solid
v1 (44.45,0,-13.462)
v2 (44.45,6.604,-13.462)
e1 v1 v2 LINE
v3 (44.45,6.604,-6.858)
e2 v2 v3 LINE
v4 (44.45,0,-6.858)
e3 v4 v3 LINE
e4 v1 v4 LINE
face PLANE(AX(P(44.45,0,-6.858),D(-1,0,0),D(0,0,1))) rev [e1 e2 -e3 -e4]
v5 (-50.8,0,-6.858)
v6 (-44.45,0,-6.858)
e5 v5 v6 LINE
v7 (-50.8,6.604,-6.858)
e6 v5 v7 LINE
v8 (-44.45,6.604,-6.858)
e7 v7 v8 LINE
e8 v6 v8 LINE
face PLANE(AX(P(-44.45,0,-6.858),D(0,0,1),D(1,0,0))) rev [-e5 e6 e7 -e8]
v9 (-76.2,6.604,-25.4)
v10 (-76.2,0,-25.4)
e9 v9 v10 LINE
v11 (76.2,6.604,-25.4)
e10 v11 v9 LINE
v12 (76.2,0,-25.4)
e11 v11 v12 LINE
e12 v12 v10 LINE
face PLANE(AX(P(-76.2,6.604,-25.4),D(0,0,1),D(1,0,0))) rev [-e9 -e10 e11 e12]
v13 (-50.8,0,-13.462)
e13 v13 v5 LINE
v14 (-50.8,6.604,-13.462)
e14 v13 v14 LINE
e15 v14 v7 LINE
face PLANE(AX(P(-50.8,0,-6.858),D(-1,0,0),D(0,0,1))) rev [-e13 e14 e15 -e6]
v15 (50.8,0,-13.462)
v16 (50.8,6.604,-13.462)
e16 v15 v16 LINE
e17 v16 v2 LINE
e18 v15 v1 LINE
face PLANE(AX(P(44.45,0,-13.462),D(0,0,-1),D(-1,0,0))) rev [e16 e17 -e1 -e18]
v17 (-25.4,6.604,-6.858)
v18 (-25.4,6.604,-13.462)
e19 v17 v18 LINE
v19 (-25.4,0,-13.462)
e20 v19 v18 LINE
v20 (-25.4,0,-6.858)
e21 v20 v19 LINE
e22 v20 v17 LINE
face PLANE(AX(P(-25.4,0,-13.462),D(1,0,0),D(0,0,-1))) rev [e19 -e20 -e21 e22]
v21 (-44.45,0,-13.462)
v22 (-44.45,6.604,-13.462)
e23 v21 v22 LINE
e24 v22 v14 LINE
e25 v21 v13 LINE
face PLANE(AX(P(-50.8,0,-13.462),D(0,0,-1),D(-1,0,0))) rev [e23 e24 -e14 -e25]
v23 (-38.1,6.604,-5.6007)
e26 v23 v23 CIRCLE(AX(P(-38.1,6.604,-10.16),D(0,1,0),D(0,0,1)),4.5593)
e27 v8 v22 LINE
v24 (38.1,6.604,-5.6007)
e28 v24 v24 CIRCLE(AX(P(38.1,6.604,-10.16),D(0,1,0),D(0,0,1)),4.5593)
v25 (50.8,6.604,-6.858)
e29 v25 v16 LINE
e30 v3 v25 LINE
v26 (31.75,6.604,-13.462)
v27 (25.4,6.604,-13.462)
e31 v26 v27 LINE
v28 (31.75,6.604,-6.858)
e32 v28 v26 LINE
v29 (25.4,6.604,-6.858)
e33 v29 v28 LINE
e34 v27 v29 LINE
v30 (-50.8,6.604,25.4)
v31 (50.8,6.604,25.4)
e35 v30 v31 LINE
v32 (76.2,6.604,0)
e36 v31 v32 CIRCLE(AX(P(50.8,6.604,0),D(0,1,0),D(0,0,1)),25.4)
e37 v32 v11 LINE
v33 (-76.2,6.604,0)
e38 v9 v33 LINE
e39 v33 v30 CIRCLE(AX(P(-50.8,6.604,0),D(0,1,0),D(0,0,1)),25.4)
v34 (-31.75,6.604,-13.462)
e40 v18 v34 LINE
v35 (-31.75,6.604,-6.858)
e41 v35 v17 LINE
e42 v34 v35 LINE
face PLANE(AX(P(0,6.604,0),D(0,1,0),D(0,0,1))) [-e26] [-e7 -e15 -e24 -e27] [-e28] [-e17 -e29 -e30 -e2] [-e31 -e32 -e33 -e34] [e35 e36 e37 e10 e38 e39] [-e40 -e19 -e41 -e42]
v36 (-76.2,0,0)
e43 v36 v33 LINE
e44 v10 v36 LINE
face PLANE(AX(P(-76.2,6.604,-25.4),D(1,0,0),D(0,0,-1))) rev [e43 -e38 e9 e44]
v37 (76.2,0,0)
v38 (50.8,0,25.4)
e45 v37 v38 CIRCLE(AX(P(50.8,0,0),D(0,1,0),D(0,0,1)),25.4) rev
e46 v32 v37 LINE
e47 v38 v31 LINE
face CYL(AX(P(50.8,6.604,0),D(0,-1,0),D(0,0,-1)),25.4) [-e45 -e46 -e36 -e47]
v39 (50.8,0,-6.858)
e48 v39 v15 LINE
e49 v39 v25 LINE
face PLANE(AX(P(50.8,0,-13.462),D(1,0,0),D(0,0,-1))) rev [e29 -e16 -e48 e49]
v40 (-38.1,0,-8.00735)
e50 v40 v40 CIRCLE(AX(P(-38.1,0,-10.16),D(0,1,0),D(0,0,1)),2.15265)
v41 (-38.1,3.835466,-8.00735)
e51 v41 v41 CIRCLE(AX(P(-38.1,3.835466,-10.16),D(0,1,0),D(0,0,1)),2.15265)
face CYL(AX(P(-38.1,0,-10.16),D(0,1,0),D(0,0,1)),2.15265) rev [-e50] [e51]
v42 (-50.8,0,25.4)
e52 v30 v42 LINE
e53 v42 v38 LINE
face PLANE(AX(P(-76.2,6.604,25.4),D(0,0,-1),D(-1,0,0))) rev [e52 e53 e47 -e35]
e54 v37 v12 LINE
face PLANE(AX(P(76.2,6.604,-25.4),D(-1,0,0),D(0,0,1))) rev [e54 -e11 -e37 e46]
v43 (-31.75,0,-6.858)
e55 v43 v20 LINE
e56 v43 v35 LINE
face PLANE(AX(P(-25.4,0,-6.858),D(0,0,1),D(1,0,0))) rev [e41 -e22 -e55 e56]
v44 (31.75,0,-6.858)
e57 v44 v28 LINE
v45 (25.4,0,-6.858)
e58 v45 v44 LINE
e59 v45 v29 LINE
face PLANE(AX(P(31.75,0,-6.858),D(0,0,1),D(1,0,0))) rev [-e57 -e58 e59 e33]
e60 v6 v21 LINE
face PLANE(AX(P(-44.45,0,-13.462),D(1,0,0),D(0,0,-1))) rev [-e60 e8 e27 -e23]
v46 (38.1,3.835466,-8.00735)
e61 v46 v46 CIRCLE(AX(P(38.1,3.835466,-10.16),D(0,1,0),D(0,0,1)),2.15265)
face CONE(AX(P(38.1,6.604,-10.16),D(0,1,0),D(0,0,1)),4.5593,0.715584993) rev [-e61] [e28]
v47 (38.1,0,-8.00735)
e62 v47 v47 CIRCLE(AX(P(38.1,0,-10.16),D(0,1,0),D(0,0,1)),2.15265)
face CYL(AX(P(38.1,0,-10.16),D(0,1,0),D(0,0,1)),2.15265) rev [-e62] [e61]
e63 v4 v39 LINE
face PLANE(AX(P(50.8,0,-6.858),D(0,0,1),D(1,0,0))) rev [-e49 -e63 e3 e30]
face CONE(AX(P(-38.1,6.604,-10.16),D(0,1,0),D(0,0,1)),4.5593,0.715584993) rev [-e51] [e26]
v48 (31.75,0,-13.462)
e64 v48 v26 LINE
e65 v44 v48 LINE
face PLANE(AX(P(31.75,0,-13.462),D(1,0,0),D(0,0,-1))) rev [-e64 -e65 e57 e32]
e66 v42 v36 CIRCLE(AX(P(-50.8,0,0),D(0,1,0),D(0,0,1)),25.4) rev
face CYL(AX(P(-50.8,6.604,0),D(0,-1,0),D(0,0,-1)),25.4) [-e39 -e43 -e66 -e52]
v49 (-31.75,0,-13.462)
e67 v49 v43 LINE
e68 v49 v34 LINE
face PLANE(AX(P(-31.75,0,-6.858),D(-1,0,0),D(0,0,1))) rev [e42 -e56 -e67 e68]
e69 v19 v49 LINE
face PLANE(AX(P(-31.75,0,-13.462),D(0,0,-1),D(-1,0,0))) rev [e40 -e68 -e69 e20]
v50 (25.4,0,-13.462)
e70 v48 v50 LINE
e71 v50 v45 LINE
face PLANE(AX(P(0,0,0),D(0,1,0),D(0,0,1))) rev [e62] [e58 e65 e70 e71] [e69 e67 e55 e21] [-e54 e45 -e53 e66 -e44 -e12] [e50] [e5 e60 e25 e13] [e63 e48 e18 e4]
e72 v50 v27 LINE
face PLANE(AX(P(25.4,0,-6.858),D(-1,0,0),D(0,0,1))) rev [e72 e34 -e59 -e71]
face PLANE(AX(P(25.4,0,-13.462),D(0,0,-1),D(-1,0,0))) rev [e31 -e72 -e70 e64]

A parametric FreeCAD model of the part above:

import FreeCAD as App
import Part
import Sketcher

V = App.Vector
Q = App.Units.Quantity


def edges_at(feature, points):
    """Names of the edges that pass closest to the given points."""
    edges = feature.Shape.Edges
    near = lambda p: min(range(len(edges)), key=lambda i: edges[i].distToShape(Part.Vertex(*p))[0])
    return sorted({f"Edge{near(p) + 1}" for p in points})


def add_polygon(sketch, points):
    """Adds a closed chain of lines whose ends are joined by coincident constraints."""
    first, n = sketch.GeometryCount, len(points)
    for a, b in zip(points, points[1:] + points[:1]):
        sketch.addGeometry(Part.LineSegment(App.Vector(*a, 0), App.Vector(*b, 0)), False)
    for i in range(n):
        sketch.addConstraint(Sketcher.Constraint("Coincident", first + i, 2, first + (i + 1) % n, 1))

doc = App.newDocument("Part")
body = doc.addObject("PartDesign::Body", "Body")

sketch1 = body.newObject("Sketcher::SketchObject", "Sketch")
sketch1.AttachmentSupport = (doc.getObject("XZ_Plane"), [""])
sketch1.MapMode = "FlatFace"
add_polygon(sketch1, [(-76, -25), (-76, 25), (76, 25), (76, -25)])
sketch1.addConstraint([
    Sketcher.Constraint("Vertical", 0),
    Sketcher.Constraint("Horizontal", 1),
    Sketcher.Constraint("Vertical", 2),
    Sketcher.Constraint("Horizontal", 3),
    Sketcher.Constraint("Symmetric", 0, 2, 2, 2, -1, 1),
    Sketcher.Constraint("DistanceX", 1, 1, 1, 2, Q("6 in")),
    Sketcher.Constraint("DistanceY", 0, 1, 0, 2, Q("2 in")),
])
pad1 = body.newObject("PartDesign::Pad", "Pad")
pad1.Profile = sketch1
pad1.Length = Q("0.26 in")
pad1.Reversed = True
doc.recompute()

fillet = body.newObject("PartDesign::Fillet", "Fillet")
fillet.Base = (pad1, edges_at(pad1, [(76.2, 3.302, 25.4), (-76.2, 3.302, 25.4)]))
fillet.Radius = Q("1 in")

sketch2 = body.newObject("Sketcher::SketchObject", "Sketch001")
sketch2.AttachmentSupport = (doc.getObject("XZ_Plane"), [""])
sketch2.MapMode = "FlatFace"
sketch2.AttachmentOffset = App.Placement(V(0, 0, -0.26 * 25.4), App.Rotation())
sketch2.addGeometry(Part.Circle(V(-38.1, -10.2, 0), V(0, 0, 1), 2.2), False)
sketch2.addGeometry(Part.Circle(V(38.1, -10.2, 0), V(0, 0, 1), 2.2), False)
add_polygon(sketch2, [(-31.8, -13.5), (-31.8, -6.9), (-25.4, -6.9), (-25.4, -13.5)])
add_polygon(sketch2, [(-50.8, -13.5), (-50.8, -6.9), (-44.5, -6.9), (-44.5, -13.5)])
add_polygon(sketch2, [(44.5, -13.5), (44.5, -6.9), (50.8, -6.9), (50.8, -13.5)])
add_polygon(sketch2, [(25.4, -13.5), (25.4, -6.9), (31.8, -6.9), (31.8, -13.5)])
sketch2.addConstraint([
    Sketcher.Constraint("Vertical", 2),
    Sketcher.Constraint("Horizontal", 3),
    Sketcher.Constraint("Vertical", 4),
    Sketcher.Constraint("Horizontal", 5),
    Sketcher.Constraint("Vertical", 6),
    Sketcher.Constraint("Horizontal", 7),
    Sketcher.Constraint("Vertical", 8),
    Sketcher.Constraint("Horizontal", 9),
    Sketcher.Constraint("Vertical", 10),
    Sketcher.Constraint("Horizontal", 11),
    Sketcher.Constraint("Vertical", 12),
    Sketcher.Constraint("Horizontal", 13),
    Sketcher.Constraint("Vertical", 14),
    Sketcher.Constraint("Horizontal", 15),
    Sketcher.Constraint("Vertical", 16),
    Sketcher.Constraint("Horizontal", 17),
    Sketcher.Constraint("Equal", 0, 1),
    Sketcher.Constraint("Symmetric", 0, 3, 1, 3, -2),
    Sketcher.Constraint("Symmetric", 7, 2, 10, 2, -2),
    Sketcher.Constraint("Symmetric", 9, 2, 12, 2, -2),
    Sketcher.Constraint("Symmetric", 3, 2, 14, 2, -2),
    Sketcher.Constraint("Symmetric", 5, 2, 16, 2, -2),
    Sketcher.Constraint("Horizontal", 3, 2, 6, 2),
    Sketcher.Constraint("Horizontal", 5, 2, 8, 2),
    Sketcher.Constraint("Equal", 5, 7),
    Sketcher.Constraint("DistanceX", 3, 2, -1, 1, Q("1 in")),
    Sketcher.Constraint("DistanceX", 6, 2, -1, 1, Q("2 in")),
    Sketcher.Constraint("DistanceX", 0, 3, 1, 3, Q("3 in")),
    Sketcher.Constraint("Diameter", 0, Q("0.1695 in")),
    Sketcher.Constraint("DistanceX", 3, 1, 3, 2, Q("0.25 in")),
    Sketcher.Constraint("DistanceY", 2, 1, 2, 2, Q("0.26 in")),
    Sketcher.Constraint("DistanceY", 0, 3, -1, 1, Q("0.4 in")),
    Sketcher.Constraint("DistanceY", 2, 2, -1, 1, Q("0.27 in")),
])
pocket1 = body.newObject("PartDesign::Pocket", "Pocket")
pocket1.Profile = sketch2
pocket1.Type = "ThroughAll"
pocket1.Reversed = True

sketch3 = body.newObject("Sketcher::SketchObject", "Sketch002")
sketch3.AttachmentSupport = (doc.getObject("XZ_Plane"), [""])
sketch3.MapMode = "FlatFace"
sketch3.AttachmentOffset = App.Placement(V(0, 0, -0.26 * 25.4), App.Rotation())
sketch3.addGeometry([
    Part.Circle(V(-38.1, -10.2, 0), V(0, 0, 1), 2.2),
    Part.Circle(V(38.1, -10.2, 0), V(0, 0, 1), 2.2),
], False)
sketch3.addConstraint([
    Sketcher.Constraint("Equal", 0, 1),
    Sketcher.Constraint("Symmetric", 0, 3, 1, 3, -2),
    Sketcher.Constraint("DistanceX", 0, 3, 1, 3, Q("3 in")),
    Sketcher.Constraint("Diameter", 0, Q("0.1695 in")),
    Sketcher.Constraint("DistanceY", 0, 3, -1, 1, Q("0.4 in")),
])
doc.recompute()
hole = body.newObject("PartDesign::Hole", "Hole")
hole.Profile = sketch3
hole.ThreadType = "None"
hole.Diameter = Q("0.1695 in")
hole.DepthType = "ThroughAll"
hole.HoleCutType = "Countersink"
hole.HoleCutDiameter = Q("0.359 in")
hole.HoleCutCountersinkAngle = 82
hole.Reversed = True

doc.recompute()
